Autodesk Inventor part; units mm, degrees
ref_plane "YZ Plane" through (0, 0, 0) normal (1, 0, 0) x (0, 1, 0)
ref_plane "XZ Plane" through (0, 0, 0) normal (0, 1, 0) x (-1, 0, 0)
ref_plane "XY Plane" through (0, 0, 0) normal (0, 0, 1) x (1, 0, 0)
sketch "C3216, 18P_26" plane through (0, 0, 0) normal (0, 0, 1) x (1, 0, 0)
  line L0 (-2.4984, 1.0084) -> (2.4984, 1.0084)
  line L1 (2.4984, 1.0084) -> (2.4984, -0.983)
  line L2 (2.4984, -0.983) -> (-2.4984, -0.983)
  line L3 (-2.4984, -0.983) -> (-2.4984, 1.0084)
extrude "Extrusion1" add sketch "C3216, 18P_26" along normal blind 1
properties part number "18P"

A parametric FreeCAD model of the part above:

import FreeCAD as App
import Part
import Sketcher
Q = App.Units.Quantity

doc = App.newDocument("Part")
body = doc.addObject("PartDesign::Body", "Body")

# Sketch on XY plane
sketch1 = body.newObject("Sketcher::SketchObject", "Sketch")
sketch1.AttachmentSupport = (doc.getObject("XY_Plane"), [""])
sketch1.MapMode = "FlatFace"
sketch1.addGeometry([
    Part.LineSegment(App.Vector(2.5, 1, 0), App.Vector(-2.5, 1, 0)),
    Part.LineSegment(App.Vector(-2.5, 1, 0), App.Vector(-2.5, -1, 0)),
    Part.LineSegment(App.Vector(-2.5, -1, 0), App.Vector(2.5, -1, 0)),
    Part.LineSegment(App.Vector(2.5, -1, 0), App.Vector(2.5, 1, 0)),
], False)
sketch1.addConstraint([
    Sketcher.Constraint("Coincident", 0, 2, 1, 1),
    Sketcher.Constraint("Coincident", 1, 2, 2, 1),
    Sketcher.Constraint("Coincident", 2, 2, 3, 1),
    Sketcher.Constraint("Coincident", 3, 2, 0, 1),
    Sketcher.Constraint("Horizontal", 0),
    Sketcher.Constraint("Vertical", 1),
    Sketcher.Constraint("Horizontal", 2),
    Sketcher.Constraint("Vertical", 3),
    Sketcher.Constraint("DistanceX", 0, 2, 0, 1, Q("4.9968 mm")),
    Sketcher.Constraint("DistanceY", 1, 2, 1, 1, Q("1.9914 mm")),
    Sketcher.Constraint("DistanceY", 1, 2, -1, 1, Q("0.983 mm")),
    Sketcher.Constraint("DistanceX", 0, 2, -1, 1, Q("2.4984 mm")),
])
pad1 = body.newObject("PartDesign::Pad", "Pad")
pad1.Profile = sketch1
pad1.Length = 1

doc.recompute()
